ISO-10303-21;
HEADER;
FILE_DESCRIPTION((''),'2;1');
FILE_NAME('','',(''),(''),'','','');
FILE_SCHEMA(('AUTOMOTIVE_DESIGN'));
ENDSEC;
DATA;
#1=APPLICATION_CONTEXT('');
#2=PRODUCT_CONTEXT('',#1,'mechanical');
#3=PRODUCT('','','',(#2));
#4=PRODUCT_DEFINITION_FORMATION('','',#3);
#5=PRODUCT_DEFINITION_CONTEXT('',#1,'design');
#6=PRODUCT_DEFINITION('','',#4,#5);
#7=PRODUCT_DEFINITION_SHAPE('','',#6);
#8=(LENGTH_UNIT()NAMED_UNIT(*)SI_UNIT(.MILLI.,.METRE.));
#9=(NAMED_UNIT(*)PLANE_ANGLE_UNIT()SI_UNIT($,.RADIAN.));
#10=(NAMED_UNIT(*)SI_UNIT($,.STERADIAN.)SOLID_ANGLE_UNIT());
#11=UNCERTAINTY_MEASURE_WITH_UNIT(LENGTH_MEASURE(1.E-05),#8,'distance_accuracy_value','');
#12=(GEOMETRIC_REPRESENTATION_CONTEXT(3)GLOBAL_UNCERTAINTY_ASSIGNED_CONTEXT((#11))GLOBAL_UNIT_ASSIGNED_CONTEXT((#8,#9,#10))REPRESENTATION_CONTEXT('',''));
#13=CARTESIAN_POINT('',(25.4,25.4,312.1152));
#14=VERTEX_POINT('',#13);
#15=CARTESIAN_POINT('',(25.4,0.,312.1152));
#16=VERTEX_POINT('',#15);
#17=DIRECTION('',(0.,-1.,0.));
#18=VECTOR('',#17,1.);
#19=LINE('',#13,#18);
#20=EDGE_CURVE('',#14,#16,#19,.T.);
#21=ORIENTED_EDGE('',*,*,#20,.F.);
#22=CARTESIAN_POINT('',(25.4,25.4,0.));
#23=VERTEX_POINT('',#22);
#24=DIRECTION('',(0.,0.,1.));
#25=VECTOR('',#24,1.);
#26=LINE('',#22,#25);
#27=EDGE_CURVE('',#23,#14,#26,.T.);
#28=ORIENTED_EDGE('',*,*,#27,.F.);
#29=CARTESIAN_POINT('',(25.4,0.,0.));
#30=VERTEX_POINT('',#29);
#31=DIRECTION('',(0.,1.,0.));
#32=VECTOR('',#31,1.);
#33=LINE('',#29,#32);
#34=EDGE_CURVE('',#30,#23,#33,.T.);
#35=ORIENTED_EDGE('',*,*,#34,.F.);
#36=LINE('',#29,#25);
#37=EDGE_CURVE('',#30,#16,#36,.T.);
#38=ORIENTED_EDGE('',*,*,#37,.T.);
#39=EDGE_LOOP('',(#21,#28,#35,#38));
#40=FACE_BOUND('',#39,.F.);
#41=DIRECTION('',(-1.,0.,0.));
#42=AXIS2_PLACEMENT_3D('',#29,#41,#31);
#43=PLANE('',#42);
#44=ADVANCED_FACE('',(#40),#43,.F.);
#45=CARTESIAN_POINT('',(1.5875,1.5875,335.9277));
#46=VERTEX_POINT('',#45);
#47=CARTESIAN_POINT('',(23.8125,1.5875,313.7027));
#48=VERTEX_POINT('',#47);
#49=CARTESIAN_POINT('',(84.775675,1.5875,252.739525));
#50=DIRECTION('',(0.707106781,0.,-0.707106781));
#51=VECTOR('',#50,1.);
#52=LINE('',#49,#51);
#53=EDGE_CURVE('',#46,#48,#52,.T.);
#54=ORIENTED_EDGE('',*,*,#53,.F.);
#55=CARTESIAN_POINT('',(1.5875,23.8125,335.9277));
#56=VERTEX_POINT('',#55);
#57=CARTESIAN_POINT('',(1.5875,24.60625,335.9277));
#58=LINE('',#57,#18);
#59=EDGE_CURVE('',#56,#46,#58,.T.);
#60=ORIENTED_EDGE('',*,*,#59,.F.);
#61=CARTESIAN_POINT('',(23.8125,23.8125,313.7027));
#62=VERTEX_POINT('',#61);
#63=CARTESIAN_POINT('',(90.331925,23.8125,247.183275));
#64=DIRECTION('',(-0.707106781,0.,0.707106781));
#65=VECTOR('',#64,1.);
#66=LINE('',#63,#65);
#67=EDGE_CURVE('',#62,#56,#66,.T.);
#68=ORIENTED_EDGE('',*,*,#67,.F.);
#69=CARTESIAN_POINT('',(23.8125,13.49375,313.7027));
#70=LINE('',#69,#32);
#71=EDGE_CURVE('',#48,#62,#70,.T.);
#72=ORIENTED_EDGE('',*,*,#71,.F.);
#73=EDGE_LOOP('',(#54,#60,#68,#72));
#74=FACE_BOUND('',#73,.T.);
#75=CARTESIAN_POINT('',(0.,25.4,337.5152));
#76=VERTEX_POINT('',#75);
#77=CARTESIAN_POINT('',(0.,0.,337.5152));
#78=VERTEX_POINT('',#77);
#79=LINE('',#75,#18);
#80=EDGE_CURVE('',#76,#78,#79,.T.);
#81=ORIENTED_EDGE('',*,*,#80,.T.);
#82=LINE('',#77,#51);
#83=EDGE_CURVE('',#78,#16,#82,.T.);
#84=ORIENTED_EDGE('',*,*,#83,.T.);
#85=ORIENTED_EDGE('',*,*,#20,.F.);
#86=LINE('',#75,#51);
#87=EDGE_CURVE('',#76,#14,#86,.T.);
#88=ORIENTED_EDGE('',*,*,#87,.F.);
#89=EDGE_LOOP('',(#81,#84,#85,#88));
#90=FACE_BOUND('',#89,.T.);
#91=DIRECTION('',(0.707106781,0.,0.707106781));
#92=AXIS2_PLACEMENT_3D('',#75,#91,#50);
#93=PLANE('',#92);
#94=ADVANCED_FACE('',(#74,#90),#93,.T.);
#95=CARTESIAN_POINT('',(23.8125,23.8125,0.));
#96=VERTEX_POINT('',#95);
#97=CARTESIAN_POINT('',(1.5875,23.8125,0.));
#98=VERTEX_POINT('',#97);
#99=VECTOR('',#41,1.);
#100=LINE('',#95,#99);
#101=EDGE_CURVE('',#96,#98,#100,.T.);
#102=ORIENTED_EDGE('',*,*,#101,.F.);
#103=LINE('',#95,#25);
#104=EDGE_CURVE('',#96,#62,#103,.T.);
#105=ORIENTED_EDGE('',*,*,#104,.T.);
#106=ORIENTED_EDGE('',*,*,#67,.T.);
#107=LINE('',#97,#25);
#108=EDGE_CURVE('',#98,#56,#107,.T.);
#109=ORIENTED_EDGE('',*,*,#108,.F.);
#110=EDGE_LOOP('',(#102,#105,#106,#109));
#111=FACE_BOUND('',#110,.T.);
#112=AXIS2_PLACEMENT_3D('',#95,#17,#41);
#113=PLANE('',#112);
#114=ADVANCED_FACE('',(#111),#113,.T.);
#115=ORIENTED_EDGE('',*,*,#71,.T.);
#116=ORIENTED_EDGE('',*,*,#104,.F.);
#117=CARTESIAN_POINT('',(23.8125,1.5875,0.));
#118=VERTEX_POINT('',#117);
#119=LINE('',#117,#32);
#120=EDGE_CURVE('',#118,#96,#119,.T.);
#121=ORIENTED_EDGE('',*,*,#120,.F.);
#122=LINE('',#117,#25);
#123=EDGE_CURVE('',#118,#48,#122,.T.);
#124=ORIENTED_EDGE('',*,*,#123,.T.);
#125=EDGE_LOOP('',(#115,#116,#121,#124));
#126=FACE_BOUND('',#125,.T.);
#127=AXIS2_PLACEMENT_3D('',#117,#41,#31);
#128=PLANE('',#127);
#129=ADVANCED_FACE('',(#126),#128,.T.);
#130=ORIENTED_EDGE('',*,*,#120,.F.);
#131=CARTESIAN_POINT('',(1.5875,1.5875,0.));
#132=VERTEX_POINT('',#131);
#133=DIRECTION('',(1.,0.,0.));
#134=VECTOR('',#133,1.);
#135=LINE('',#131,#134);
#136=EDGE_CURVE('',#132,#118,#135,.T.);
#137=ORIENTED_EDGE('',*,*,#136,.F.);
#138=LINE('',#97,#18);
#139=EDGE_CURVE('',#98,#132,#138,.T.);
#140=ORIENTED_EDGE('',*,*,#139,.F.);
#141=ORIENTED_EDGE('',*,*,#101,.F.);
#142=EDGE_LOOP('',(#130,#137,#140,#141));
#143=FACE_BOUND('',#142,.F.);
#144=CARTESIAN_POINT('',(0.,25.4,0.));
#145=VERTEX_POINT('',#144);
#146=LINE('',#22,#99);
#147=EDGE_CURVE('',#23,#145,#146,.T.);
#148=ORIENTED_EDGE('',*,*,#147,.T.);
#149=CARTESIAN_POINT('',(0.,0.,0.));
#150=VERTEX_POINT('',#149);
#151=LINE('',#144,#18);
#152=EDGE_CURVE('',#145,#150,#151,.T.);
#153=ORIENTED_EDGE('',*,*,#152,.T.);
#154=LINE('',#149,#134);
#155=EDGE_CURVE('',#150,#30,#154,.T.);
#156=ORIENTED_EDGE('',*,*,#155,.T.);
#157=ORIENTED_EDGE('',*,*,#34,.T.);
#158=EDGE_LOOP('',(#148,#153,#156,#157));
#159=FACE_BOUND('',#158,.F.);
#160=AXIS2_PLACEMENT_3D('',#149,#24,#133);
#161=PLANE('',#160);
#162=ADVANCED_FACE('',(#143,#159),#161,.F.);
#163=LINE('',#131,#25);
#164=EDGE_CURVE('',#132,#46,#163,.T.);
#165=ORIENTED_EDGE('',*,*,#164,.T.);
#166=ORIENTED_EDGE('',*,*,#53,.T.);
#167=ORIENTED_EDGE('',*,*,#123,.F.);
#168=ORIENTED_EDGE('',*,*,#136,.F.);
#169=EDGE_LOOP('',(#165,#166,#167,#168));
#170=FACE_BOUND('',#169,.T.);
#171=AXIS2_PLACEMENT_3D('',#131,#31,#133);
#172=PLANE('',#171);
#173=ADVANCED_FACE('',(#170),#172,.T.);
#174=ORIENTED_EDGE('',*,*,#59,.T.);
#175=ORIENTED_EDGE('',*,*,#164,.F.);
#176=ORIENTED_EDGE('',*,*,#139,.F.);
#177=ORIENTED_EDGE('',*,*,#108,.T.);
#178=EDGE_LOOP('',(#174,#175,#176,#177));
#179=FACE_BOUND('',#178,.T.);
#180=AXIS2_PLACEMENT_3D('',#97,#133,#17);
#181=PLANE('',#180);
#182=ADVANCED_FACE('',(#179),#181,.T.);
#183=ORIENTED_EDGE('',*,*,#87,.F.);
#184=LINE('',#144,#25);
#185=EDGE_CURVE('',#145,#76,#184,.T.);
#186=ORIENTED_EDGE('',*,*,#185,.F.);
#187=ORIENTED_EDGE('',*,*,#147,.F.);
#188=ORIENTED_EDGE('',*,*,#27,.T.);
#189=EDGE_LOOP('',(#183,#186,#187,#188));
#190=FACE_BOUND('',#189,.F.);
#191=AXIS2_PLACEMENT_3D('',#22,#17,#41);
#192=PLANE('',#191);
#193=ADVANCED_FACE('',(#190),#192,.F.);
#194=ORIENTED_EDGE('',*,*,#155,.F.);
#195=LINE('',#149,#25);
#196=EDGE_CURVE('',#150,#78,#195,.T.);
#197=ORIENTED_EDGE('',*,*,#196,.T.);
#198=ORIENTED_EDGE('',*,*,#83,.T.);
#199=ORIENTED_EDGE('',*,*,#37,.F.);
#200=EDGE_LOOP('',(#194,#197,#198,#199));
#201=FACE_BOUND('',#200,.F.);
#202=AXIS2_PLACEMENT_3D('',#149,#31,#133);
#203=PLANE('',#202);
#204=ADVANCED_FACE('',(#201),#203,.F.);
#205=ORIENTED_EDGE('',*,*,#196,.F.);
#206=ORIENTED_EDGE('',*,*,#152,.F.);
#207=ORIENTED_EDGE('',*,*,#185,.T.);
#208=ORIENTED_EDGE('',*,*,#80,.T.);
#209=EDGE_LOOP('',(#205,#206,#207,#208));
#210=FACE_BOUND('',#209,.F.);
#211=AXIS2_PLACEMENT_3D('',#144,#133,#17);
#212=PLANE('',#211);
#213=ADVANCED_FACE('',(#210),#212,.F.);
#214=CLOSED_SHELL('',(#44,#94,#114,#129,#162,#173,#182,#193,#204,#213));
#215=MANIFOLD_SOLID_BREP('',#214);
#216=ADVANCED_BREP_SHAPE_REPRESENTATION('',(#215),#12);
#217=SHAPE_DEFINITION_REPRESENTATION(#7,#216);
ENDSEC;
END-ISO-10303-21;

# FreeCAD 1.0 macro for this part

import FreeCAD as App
import Part
import Sketcher
Q = App.Units.Quantity


def add_polygon(sketch, points):
    """Adds a closed chain of lines whose ends are joined by coincident constraints."""
    first, n = sketch.GeometryCount, len(points)
    for a, b in zip(points, points[1:] + points[:1]):
        sketch.addGeometry(Part.LineSegment(App.Vector(*a, 0), App.Vector(*b, 0)), False)
    for i in range(n):
        sketch.addConstraint(Sketcher.Constraint("Coincident", first + i, 2, first + (i + 1) % n, 1))

doc = App.newDocument("Part")
body = doc.addObject("PartDesign::Body", "Body")

sketch1 = doc.addObject("Sketcher::SketchObject", "Sketch")
body.addObject(sketch1)
sketch1.AttachmentSupport = (doc.XY_Plane, [""])
sketch1.MapMode = "FlatFace"
add_polygon(sketch1, [(0, 25.4), (0, 0), (25.4, 0), (25.4, 25.4)])
add_polygon(sketch1, [(23.8125, 1.5875), (1.5875, 1.5875), (1.5875, 23.8125), (23.8125, 23.8125)])
sketch1.addConstraint(Sketcher.Constraint("Vertical", 0))
sketch1.addConstraint(Sketcher.Constraint("Horizontal", 1))
sketch1.addConstraint(Sketcher.Constraint("Vertical", 2))
sketch1.addConstraint(Sketcher.Constraint("Horizontal", 3))
sketch1.addConstraint(Sketcher.Constraint("Horizontal", 4))
sketch1.addConstraint(Sketcher.Constraint("Vertical", 5))
sketch1.addConstraint(Sketcher.Constraint("Horizontal", 6))
sketch1.addConstraint(Sketcher.Constraint("Vertical", 7))
sketch1.addConstraint(Sketcher.Constraint("Coincident", 0, 2, -1, 1))
sketch1.addConstraint(Sketcher.Constraint("Equal", 3, 0))
sketch1.addConstraint(Sketcher.Constraint("Equal", 6, 5))
sketch1.addConstraint(Sketcher.Constraint("DistanceX", 1, 1, 1, 2, Q("1 in")))
sketch1.addConstraint(Sketcher.Constraint("DistanceX", -1, 1, 4, 2, Q("0.0625 in")))
sketch1.addConstraint(Sketcher.Constraint("DistanceY", -1, 1, 4, 2, Q("0.0625 in")))
sketch1.addConstraint(Sketcher.Constraint("DistanceY", 5, 2, 3, 2, Q("0.0625 in")))
pad1 = doc.addObject("PartDesign::Pad", "Pad")
body.addObject(pad1)
pad1.Profile = sketch1
pad1.Length = Q("13.288 in")

sketch2 = doc.addObject("Sketcher::SketchObject", "Sketch001")
body.addObject(sketch2)
sketch2.AttachmentSupport = (doc.XZ_Plane, [""])
sketch2.MapMode = "FlatFace"
sketch2.AttachmentOffset = App.Placement(App.Vector(0, 0, -1 * 25.4), App.Rotation())
add_polygon(sketch2, [(25.4, 312.1152), (0, 337.5152), (25.4, 337.5152)])
sketch2.addConstraint(Sketcher.Constraint("Horizontal", 1))
sketch2.addConstraint(Sketcher.Constraint("Vertical", 2))
sketch2.addConstraint(Sketcher.Constraint("PointOnObject", 0, 2, -2))
sketch2.addConstraint(Sketcher.Constraint("Equal", 1, 2))
sketch2.addConstraint(Sketcher.Constraint("DistanceX", 1, 1, 1, 2, Q("1 in")))
sketch2.addConstraint(Sketcher.Constraint("DistanceY", -1, 1, 0, 2, Q("13.288 in")))
pocket1 = doc.addObject("PartDesign::Pocket", "Pocket")
body.addObject(pocket1)
pocket1.Profile = sketch2
pocket1.Length = Q("1 in")
pocket1.Reversed = True

doc.recompute()
